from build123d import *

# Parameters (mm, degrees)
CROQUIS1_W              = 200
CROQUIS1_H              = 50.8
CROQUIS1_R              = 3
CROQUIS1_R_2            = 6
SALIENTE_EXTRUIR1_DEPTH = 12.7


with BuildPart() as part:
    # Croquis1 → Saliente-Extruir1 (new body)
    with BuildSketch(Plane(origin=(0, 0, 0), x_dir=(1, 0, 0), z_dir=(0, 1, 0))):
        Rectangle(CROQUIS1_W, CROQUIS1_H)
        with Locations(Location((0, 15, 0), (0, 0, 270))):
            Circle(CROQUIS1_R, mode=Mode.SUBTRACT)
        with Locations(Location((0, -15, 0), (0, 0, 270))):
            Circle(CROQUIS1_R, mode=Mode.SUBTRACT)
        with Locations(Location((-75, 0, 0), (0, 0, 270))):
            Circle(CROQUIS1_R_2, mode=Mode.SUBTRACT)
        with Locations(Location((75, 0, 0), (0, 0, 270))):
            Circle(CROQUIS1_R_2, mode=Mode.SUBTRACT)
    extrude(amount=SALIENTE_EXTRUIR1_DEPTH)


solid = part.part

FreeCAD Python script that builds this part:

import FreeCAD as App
import Part
import Sketcher

V = App.Vector


def add_polygon(sketch, points):
    """Adds a closed chain of lines whose ends are joined by coincident constraints."""
    first, n = sketch.GeometryCount, len(points)
    for a, b in zip(points, points[1:] + points[:1]):
        sketch.addGeometry(Part.LineSegment(App.Vector(*a, 0), App.Vector(*b, 0)), False)
    for i in range(n):
        sketch.addConstraint(Sketcher.Constraint("Coincident", first + i, 2, first + (i + 1) % n, 1))

doc = App.newDocument("Part")
body = doc.addObject("PartDesign::Body", "Body")

# Sketch on XZ plane
sketch1 = body.newObject("Sketcher::SketchObject", "Sketch")
sketch1.AttachmentSupport = (doc.getObject("XZ_Plane"), [""])
sketch1.MapMode = "FlatFace"
add_polygon(sketch1, [(-100, -25.4), (-100, 25.4), (100, 25.4), (100, -25.4)])  # lines 0-3
sketch1.addGeometry(Part.Circle(V(0, 15, 0), V(0, 0, 1), 3), False)  # 4
sketch1.addGeometry(Part.Circle(V(-75, 0, 0), V(0, 0, 1), 6), False)  # 5
sketch1.addGeometry(Part.Circle(V(75, 0, 0), V(0, 0, 1), 6), False)  # 6
sketch1.addGeometry(Part.Circle(V(0, -15, 0), V(0, 0, 1), 3), False)  # 7
sketch1.addConstraint([
    Sketcher.Constraint("Vertical", 0),
    Sketcher.Constraint("Horizontal", 1),
    Sketcher.Constraint("Vertical", 2),
    Sketcher.Constraint("Horizontal", 3),
    Sketcher.Constraint("Equal", 5, 6),
    Sketcher.Constraint("Equal", 4, 7),
    Sketcher.Constraint("Symmetric", 5, 3, 6, 3, -1, 1),
    Sketcher.Constraint("Symmetric", 4, 3, 7, 3, -1, 1),
    Sketcher.Constraint("Symmetric", 0, 2, 2, 2, -1, 1),
    Sketcher.Constraint("PointOnObject", 4, 3, -2),
    Sketcher.Constraint("PointOnObject", 5, 3, -1),
    Sketcher.Constraint("Diameter", 4, 6.0),
    Sketcher.Constraint("Diameter", 5, 12.0),
    Sketcher.Constraint("DistanceX", 1, 1, 1, 2, 200.0),
    Sketcher.Constraint("DistanceY", 0, 1, 0, 2, 50.8),
    Sketcher.Constraint("DistanceY", -1, 1, 4, 3, 15.0),
    Sketcher.Constraint("DistanceX", 5, 3, -1, 1, 75.0),
])
pad1 = body.newObject("PartDesign::Pad", "Pad")
pad1.Profile = sketch1
pad1.Length = 12.7
pad1.Reversed = True

doc.recompute()
